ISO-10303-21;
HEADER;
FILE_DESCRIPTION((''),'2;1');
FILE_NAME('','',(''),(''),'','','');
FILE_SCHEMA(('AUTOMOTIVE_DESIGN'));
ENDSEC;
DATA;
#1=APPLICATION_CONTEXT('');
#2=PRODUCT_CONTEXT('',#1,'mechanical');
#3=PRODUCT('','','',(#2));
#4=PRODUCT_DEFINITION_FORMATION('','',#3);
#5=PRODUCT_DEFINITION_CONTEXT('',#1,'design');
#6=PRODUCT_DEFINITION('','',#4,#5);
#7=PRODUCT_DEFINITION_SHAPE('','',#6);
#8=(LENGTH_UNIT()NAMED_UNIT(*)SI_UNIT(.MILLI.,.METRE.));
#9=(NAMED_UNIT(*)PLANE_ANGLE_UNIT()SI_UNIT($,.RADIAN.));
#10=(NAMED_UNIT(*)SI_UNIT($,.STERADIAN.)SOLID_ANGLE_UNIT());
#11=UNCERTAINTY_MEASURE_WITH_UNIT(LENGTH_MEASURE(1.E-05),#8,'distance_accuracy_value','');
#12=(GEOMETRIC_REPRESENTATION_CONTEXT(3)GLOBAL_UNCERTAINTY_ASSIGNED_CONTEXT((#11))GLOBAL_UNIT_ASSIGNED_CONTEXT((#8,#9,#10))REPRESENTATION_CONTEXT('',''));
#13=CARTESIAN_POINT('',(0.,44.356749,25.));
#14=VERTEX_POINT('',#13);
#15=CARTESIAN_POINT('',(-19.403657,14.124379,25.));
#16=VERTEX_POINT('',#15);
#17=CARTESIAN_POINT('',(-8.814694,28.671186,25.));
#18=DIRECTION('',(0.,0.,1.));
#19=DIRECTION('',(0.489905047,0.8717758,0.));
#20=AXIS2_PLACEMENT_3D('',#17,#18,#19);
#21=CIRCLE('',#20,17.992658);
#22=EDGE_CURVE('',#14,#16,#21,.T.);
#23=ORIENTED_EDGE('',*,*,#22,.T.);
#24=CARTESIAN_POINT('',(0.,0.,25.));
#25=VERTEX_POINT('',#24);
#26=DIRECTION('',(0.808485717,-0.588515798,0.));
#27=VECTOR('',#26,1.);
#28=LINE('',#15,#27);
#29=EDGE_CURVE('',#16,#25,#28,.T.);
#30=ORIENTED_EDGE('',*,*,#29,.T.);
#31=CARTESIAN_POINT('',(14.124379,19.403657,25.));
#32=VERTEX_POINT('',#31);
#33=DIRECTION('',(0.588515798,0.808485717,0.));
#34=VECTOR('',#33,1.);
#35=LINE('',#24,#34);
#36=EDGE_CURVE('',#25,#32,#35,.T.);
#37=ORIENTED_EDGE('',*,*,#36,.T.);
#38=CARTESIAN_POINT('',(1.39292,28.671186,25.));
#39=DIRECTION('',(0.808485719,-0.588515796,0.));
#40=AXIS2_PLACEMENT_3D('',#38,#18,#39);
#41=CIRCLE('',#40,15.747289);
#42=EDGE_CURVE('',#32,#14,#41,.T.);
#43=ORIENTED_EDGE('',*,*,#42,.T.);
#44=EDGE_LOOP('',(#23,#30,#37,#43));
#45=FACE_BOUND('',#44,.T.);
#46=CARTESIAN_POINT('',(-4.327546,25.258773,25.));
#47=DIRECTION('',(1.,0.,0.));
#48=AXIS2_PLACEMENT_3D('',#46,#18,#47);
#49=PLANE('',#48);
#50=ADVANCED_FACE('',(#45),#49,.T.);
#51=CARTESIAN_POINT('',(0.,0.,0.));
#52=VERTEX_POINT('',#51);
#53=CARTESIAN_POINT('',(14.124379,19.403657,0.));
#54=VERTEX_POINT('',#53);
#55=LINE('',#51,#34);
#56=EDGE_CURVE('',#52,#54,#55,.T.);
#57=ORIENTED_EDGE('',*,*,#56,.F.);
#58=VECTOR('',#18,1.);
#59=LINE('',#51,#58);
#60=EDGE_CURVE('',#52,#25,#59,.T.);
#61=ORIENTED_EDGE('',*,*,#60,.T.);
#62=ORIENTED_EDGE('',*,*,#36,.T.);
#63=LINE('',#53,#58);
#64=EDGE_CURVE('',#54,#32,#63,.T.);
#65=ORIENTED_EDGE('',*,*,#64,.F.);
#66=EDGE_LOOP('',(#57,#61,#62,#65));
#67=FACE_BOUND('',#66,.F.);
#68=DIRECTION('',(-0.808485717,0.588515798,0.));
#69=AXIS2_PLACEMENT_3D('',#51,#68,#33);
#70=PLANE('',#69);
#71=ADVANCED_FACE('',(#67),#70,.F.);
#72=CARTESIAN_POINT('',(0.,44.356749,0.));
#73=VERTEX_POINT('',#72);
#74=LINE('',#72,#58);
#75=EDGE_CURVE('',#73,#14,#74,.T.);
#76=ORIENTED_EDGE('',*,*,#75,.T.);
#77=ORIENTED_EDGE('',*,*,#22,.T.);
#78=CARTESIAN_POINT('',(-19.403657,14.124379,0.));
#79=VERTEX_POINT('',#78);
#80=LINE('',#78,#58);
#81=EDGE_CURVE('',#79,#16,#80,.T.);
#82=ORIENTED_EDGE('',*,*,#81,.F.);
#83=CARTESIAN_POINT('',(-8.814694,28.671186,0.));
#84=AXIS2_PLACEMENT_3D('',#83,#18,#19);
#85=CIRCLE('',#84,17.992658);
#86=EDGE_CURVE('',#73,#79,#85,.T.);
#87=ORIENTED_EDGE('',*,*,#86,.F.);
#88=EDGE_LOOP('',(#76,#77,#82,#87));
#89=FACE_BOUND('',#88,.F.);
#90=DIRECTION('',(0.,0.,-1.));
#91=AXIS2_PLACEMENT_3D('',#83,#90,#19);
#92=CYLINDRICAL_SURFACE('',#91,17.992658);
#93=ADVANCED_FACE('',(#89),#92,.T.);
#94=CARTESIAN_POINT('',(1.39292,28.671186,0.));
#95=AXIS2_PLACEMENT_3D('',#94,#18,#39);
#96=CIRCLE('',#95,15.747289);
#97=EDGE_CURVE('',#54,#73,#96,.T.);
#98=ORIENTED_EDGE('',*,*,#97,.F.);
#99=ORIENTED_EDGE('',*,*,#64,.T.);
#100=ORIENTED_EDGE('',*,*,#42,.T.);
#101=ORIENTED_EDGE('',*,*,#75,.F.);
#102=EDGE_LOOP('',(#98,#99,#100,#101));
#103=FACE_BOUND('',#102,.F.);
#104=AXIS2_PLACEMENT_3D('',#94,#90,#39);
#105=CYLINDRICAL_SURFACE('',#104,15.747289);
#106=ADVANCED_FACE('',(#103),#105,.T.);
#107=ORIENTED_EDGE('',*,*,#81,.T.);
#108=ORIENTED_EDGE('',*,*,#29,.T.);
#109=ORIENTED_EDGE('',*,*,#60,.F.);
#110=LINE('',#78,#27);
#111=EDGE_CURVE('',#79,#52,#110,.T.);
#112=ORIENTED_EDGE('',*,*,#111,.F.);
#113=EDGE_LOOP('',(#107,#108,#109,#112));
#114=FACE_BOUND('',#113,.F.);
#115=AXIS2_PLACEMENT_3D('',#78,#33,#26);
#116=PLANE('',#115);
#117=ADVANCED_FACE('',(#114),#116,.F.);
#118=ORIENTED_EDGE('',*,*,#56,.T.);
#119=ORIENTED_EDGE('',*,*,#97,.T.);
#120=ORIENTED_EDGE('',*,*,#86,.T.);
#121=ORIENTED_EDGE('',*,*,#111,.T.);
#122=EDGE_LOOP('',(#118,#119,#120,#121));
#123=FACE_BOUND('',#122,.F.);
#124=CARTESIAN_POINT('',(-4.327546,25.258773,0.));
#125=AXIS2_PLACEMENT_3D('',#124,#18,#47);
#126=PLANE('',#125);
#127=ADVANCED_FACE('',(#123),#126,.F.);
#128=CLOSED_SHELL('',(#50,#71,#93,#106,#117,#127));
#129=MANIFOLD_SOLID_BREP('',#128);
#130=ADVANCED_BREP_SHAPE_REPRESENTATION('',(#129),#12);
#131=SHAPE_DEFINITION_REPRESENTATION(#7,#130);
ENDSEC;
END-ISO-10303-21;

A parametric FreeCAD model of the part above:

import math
import FreeCAD as App
import Part
import Sketcher

V = App.Vector

doc = App.newDocument("Part")
params = doc.addObject("Spreadsheet::Sheet", "Params")
for row, (alias, value) in enumerate([
    ("sketch1_length", "24 mm"),
    ("pad1_length", "25 mm"),
], start=1):
    params.set(f"A{row}", alias)
    params.set(f"B{row}", "=" + value)
    params.setAlias(f"B{row}", alias)

body = doc.addObject("PartDesign::Body", "Body")

# Sketch on XY plane
sketch1 = body.newObject("Sketcher::SketchObject", "Sketch")
sketch1.AttachmentSupport = (doc.getObject("XY_Plane"), [""])
sketch1.MapMode = "FlatFace"
sketch1.addGeometry([
    Part.LineSegment(V(-19, 14, 0), V(0, 0, 0)),
    Part.LineSegment(V(0, 0, 0), V(14, 19, 0)),
    Part.ArcOfCircle(Part.Circle(V(1, 29, 0), V(0, 0, 1), 16), math.radians(-36), math.radians(95)),
    Part.ArcOfCircle(Part.Circle(V(-9, 29, 0), V(0, 0, 1), 18), math.radians(61), math.radians(234)),
], False)
sketch1.addConstraint([
    Sketcher.Constraint("Coincident", 0, 2, 1, 1),
    Sketcher.Constraint("Tangent", 1, 2, 2, 1),
    Sketcher.Constraint("Coincident", 2, 2, 3, 1),
    Sketcher.Constraint("Tangent", 3, 2, 0, 1),
    Sketcher.Constraint("Coincident", 0, 2, -1, 1),
    Sketcher.Constraint("PointOnObject", 2, 2, -2),
    Sketcher.Constraint("Perpendicular", 0, 1),
    Sketcher.Constraint("Horizontal", 2, 3, 3, 3),
    Sketcher.Constraint("Distance", 0, 24.0),
    Sketcher.Constraint("Radius", 2, 15.747289),
    Sketcher.Constraint("Radius", 3, 17.992658),
])
sketch1.setExpression("Constraints[8]", "Params.sketch1_length")
pad1 = body.newObject("PartDesign::Pad", "Pad")
pad1.Profile = sketch1
pad1.setExpression("Length", "Params.pad1_length")

doc.recompute()
